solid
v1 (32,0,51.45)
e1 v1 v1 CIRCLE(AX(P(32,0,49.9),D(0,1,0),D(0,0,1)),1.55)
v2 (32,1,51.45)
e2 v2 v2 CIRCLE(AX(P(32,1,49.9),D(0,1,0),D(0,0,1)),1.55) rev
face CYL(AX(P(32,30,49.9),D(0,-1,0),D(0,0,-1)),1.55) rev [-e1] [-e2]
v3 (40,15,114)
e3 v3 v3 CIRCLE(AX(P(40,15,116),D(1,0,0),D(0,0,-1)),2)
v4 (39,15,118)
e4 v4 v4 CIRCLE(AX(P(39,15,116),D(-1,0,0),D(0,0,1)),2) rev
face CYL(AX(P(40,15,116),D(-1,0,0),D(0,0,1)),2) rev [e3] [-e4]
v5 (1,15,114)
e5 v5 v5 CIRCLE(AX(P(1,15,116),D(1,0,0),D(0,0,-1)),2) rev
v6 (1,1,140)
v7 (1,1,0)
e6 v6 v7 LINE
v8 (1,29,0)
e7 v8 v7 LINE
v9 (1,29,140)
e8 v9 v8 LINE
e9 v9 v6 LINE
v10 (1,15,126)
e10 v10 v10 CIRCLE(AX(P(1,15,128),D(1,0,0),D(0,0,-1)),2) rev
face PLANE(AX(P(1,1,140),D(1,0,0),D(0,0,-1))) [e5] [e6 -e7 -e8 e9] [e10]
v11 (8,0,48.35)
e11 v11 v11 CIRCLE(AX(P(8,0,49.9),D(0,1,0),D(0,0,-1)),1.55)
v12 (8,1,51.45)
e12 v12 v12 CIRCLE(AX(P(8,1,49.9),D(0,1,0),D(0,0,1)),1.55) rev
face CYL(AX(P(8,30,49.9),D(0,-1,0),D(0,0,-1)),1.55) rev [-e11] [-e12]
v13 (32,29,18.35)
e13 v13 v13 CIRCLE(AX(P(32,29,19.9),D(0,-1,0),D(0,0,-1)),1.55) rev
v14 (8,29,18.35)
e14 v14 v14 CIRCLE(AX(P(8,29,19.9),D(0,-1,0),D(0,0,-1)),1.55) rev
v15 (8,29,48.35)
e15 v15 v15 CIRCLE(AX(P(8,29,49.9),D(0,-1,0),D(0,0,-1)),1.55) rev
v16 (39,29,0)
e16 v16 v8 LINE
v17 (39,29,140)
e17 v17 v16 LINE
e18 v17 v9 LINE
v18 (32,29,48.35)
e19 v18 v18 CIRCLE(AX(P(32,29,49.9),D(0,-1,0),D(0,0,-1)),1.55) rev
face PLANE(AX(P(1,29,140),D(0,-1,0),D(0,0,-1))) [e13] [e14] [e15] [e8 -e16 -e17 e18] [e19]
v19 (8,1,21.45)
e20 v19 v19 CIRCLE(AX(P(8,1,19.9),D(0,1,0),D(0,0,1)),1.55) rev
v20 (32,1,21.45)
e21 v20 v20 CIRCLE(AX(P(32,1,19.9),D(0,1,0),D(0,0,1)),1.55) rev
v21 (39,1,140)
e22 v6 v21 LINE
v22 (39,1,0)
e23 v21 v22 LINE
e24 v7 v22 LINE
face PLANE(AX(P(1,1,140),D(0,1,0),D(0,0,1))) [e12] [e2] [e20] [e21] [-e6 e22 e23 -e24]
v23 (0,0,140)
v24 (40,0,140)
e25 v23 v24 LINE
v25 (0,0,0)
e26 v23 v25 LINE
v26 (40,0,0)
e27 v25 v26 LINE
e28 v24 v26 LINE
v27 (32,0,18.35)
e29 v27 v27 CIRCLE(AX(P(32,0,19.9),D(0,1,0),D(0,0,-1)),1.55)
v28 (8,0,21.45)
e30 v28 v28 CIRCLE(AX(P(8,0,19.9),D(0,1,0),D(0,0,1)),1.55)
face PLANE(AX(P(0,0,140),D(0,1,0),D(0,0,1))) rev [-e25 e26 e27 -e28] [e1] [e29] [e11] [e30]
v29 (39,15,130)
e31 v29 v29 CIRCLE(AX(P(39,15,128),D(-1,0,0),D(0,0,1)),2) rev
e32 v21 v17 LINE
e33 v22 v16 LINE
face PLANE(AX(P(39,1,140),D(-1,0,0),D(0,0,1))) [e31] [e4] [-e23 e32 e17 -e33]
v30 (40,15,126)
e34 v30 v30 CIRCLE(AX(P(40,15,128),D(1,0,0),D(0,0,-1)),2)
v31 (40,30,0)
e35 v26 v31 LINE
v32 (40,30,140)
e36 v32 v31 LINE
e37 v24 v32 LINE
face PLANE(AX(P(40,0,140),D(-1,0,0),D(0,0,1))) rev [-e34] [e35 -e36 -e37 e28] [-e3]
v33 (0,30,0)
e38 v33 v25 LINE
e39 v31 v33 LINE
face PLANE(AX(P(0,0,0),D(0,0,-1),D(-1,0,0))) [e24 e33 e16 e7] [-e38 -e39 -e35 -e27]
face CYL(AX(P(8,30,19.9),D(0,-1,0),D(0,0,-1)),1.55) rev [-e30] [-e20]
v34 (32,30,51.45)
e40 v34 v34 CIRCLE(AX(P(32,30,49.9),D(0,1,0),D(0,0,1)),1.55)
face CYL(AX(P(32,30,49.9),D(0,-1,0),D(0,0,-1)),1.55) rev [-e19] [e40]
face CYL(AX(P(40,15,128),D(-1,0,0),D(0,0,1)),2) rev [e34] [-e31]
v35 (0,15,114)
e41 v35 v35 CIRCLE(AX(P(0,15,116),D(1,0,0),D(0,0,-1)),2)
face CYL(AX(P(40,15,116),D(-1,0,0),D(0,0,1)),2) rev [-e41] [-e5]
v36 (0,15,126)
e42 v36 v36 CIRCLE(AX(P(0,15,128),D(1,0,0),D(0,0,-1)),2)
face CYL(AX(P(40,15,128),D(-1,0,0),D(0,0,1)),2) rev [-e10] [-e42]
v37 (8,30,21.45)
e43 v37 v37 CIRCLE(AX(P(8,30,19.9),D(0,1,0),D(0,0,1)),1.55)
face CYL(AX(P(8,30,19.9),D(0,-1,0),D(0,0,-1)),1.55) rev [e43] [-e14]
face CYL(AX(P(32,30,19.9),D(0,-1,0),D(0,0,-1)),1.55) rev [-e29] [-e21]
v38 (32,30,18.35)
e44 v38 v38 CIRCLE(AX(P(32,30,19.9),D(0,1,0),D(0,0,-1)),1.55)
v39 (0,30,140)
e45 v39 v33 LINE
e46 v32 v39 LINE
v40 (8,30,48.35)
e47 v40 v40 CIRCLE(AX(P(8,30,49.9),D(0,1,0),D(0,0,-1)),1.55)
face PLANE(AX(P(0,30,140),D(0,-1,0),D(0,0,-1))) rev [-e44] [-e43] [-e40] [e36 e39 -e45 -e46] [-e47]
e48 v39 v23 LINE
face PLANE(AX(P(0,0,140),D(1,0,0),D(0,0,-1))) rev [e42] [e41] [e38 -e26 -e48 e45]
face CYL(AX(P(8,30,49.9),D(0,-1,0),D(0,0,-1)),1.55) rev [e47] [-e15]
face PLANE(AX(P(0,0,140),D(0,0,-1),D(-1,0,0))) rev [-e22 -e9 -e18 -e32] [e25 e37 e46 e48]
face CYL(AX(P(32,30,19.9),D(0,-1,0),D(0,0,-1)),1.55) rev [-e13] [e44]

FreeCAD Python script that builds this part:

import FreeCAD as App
import Part
import Sketcher
Q = App.Units.Quantity


def add_polygon(sketch, points):
    """Adds a closed chain of lines whose ends are joined by coincident constraints."""
    first, n = sketch.GeometryCount, len(points)
    for a, b in zip(points, points[1:] + points[:1]):
        sketch.addGeometry(Part.LineSegment(App.Vector(*a, 0), App.Vector(*b, 0)), False)
    for i in range(n):
        sketch.addConstraint(Sketcher.Constraint("Coincident", first + i, 2, first + (i + 1) % n, 1))

doc = App.newDocument("Part")
body = doc.addObject("PartDesign::Body", "Body")

sketch1 = body.newObject("Sketcher::SketchObject", "Sketch")
sketch1.AttachmentSupport = (doc.getObject("XY_Plane"), [""])
sketch1.MapMode = "FlatFace"
add_polygon(sketch1, [(0, 30), (0, 0), (40, 0), (40, 30)])
add_polygon(sketch1, [(39, 1), (1, 1), (1, 29), (39, 29)])
sketch1.addConstraint(Sketcher.Constraint("Vertical", 0))
sketch1.addConstraint(Sketcher.Constraint("Horizontal", 1))
sketch1.addConstraint(Sketcher.Constraint("Vertical", 2))
sketch1.addConstraint(Sketcher.Constraint("Horizontal", 3))
sketch1.addConstraint(Sketcher.Constraint("Horizontal", 4))
sketch1.addConstraint(Sketcher.Constraint("Vertical", 5))
sketch1.addConstraint(Sketcher.Constraint("Horizontal", 6))
sketch1.addConstraint(Sketcher.Constraint("Vertical", 7))
sketch1.addConstraint(Sketcher.Constraint("Coincident", 0, 2, -1, 1))
sketch1.addConstraint(Sketcher.Constraint("DistanceX", 1, 1, 1, 2, Q("40 mm")))
sketch1.addConstraint(Sketcher.Constraint("DistanceX", 4, 2, 4, 1, Q("38 mm")))
sketch1.addConstraint(Sketcher.Constraint("DistanceY", 0, 2, 0, 1, Q("30 mm")))
sketch1.addConstraint(Sketcher.Constraint("DistanceY", 5, 1, 5, 2, Q("28 mm")))
sketch1.addConstraint(Sketcher.Constraint("DistanceX", -1, 1, 4, 2, Q("1 mm")))
sketch1.addConstraint(Sketcher.Constraint("DistanceY", -1, 1, 4, 2, Q("1 mm")))
pad1 = body.newObject("PartDesign::Pad", "Pad")
pad1.Profile = sketch1
pad1.Length = 140

sketch2 = body.newObject("Sketcher::SketchObject", "Sketch001")
sketch2.AttachmentSupport = (doc.getObject("YZ_Plane"), [""])
sketch2.MapMode = "FlatFace"
sketch2.addGeometry(Part.Circle(App.Vector(15, 116, 0), App.Vector(0, 0, 1), 2), False)
sketch2.addGeometry(Part.Circle(App.Vector(15, 128, 0), App.Vector(0, 0, 1), 2), False)
sketch2.addConstraint(Sketcher.Constraint("Equal", 0, 1))
sketch2.addConstraint(Sketcher.Constraint("Vertical", 0, 3, 1, 3))
sketch2.addConstraint(Sketcher.Constraint("Diameter", 0, Q("4 mm")))
sketch2.addConstraint(Sketcher.Constraint("DistanceX", -1, 1, 0, 3, Q("15 mm")))
sketch2.addConstraint(Sketcher.Constraint("DistanceY", -1, 1, 0, 3, Q("116 mm")))
sketch2.addConstraint(Sketcher.Constraint("DistanceY", -1, 1, 1, 3, Q("128 mm")))
pocket1 = body.newObject("PartDesign::Pocket", "Pocket")
pocket1.Profile = sketch2
pocket1.Type = "ThroughAll"
pocket1.Reversed = True

sketch3 = body.newObject("Sketcher::SketchObject", "Sketch002")
sketch3.AttachmentSupport = (doc.getObject("XZ_Plane"), [""])
sketch3.MapMode = "FlatFace"
sketch3.addGeometry(Part.Circle(App.Vector(8, 19.9, 0), App.Vector(0, 0, 1), 1.6), False)
sketch3.addGeometry(Part.Circle(App.Vector(32, 19.9, 0), App.Vector(0, 0, 1), 1.6), False)
sketch3.addGeometry(Part.Circle(App.Vector(32, 49.9, 0), App.Vector(0, 0, 1), 1.6), False)
sketch3.addGeometry(Part.Circle(App.Vector(8, 49.9, 0), App.Vector(0, 0, 1), 1.6), False)
sketch3.addConstraint(Sketcher.Constraint("Equal", 0, 1))
sketch3.addConstraint(Sketcher.Constraint("Equal", 1, 2))
sketch3.addConstraint(Sketcher.Constraint("Equal", 2, 3))
sketch3.addConstraint(Sketcher.Constraint("Horizontal", 0, 3, 1, 3))
sketch3.addConstraint(Sketcher.Constraint("Horizontal", 2, 3, 3, 3))
sketch3.addConstraint(Sketcher.Constraint("Vertical", 1, 3, 2, 3))
sketch3.addConstraint(Sketcher.Constraint("Vertical", 0, 3, 3, 3))
sketch3.addConstraint(Sketcher.Constraint("Diameter", 0, Q("3.1 mm")))
sketch3.addConstraint(Sketcher.Constraint("DistanceX", -1, 1, 0, 3, Q("8 mm")))
sketch3.addConstraint(Sketcher.Constraint("DistanceX", -1, 1, 1, 3, Q("32 mm")))
sketch3.addConstraint(Sketcher.Constraint("DistanceY", 1, 3, 2, 3, Q("30 mm")))
sketch3.addConstraint(Sketcher.Constraint("DistanceY", -1, 1, 0, 3, Q("19.9 mm")))
pocket2 = body.newObject("PartDesign::Pocket", "Pocket001")
pocket2.Profile = sketch3
pocket2.Type = "ThroughAll"

doc.recompute()
